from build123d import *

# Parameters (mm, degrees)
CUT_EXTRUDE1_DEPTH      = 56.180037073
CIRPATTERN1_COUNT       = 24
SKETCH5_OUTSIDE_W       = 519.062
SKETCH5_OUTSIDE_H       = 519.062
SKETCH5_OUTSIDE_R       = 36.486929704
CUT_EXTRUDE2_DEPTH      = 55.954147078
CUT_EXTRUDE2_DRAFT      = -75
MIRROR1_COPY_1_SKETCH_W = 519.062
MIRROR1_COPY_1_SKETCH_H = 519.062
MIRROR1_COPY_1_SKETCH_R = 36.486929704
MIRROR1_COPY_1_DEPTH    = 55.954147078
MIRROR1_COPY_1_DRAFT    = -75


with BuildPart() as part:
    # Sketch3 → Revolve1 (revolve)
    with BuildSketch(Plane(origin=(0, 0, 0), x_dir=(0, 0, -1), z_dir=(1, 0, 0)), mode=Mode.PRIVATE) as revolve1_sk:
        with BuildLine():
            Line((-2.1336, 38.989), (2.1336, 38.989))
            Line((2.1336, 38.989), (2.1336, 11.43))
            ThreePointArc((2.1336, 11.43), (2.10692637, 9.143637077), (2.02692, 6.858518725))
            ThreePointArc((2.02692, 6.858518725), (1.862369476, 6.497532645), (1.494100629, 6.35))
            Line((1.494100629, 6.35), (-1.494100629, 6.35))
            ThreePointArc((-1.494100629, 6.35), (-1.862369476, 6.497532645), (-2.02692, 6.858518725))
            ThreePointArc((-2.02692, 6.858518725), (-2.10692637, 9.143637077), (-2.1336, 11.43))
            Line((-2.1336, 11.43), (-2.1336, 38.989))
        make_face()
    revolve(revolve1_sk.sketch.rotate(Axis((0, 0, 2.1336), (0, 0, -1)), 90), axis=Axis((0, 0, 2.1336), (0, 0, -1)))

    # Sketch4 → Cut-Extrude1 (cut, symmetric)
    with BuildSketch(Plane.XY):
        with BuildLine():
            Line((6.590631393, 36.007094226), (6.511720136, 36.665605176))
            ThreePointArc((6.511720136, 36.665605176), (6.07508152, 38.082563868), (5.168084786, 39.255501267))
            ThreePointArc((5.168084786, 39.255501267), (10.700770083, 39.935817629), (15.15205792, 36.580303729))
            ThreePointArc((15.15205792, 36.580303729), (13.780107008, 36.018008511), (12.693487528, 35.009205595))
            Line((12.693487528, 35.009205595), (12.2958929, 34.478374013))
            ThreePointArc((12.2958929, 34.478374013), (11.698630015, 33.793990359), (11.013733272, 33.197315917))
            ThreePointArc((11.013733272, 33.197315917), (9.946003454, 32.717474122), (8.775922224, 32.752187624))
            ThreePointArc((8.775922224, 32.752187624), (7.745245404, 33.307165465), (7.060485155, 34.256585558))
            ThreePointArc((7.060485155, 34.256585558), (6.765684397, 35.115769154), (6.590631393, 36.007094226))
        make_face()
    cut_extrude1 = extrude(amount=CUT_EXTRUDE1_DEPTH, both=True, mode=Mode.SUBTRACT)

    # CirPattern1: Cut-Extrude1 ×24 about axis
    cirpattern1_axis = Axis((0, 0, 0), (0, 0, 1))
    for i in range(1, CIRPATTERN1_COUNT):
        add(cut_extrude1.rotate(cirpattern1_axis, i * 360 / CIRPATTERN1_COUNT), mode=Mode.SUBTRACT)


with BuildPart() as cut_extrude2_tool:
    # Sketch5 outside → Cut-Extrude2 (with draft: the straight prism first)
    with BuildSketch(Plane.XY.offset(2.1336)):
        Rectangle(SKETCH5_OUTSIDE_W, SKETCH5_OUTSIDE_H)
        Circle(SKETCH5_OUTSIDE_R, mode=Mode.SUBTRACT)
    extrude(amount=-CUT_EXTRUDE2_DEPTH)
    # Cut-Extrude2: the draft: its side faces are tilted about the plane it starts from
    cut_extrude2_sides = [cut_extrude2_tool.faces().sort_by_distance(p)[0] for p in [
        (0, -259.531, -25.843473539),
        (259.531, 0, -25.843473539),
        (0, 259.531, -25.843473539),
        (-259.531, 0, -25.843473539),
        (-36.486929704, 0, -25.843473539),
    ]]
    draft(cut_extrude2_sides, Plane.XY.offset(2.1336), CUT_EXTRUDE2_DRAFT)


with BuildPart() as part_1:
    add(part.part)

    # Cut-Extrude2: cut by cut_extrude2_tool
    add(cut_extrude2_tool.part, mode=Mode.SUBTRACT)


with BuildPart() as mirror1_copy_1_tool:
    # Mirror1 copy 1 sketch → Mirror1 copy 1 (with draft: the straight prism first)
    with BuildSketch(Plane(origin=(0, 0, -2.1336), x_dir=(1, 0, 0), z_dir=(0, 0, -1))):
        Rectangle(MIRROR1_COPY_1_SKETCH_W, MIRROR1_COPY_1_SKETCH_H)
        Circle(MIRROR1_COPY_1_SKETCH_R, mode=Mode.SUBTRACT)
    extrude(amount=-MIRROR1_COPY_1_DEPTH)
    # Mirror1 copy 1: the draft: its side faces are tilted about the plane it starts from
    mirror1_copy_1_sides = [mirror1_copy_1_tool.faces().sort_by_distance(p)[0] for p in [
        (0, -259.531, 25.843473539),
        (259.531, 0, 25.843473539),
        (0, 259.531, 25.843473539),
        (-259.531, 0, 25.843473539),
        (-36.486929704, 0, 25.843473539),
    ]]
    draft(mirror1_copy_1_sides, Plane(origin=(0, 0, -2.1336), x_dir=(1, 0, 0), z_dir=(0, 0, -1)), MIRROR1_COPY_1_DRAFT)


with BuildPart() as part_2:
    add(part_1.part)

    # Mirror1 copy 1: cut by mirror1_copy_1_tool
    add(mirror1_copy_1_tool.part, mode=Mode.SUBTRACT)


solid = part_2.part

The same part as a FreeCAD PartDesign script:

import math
import FreeCAD as App
import Part
import Sketcher

V = App.Vector
Q = App.Units.Quantity


def faces_at(feature, points):
    """Names of the faces that lie closest to the given points."""
    faces = feature.Shape.Faces
    near = lambda p: min(range(len(faces)), key=lambda i: faces[i].distToShape(Part.Vertex(*p))[0])
    return sorted({f"Face{near(p) + 1}" for p in points})


def add_polygon(sketch, points):
    """Adds a closed chain of lines whose ends are joined by coincident constraints."""
    first, n = sketch.GeometryCount, len(points)
    for a, b in zip(points, points[1:] + points[:1]):
        sketch.addGeometry(Part.LineSegment(App.Vector(*a, 0), App.Vector(*b, 0)), False)
    for i in range(n):
        sketch.addConstraint(Sketcher.Constraint("Coincident", first + i, 2, first + (i + 1) % n, 1))

doc = App.newDocument("Part")
params = doc.addObject("Spreadsheet::Sheet", "Params")
for row, (alias, value) in enumerate([
    ("sketch1_radius", "0.021 in"),
    ("sketch1_width", "1.085 in"),
    ("sketch1_height", "0.168 in"),
    ("revolution_angle", "360 deg"),
    ("sketch2_radius", "0.262 in"),
    ("pocket1_length", "112.360074 mm"),
    ("pad1_length", "55.954147 mm"),
    ("draft_angle", "75 deg"),
    ("pad2_length", "55.954147 mm"),
    ("draft2_angle", "75 deg"),
], start=1):
    params.set(f"A{row}", alias)
    params.set(f"B{row}", "=" + value)
    params.setAlias(f"B{row}", alias)

body = doc.addObject("PartDesign::Body", "Body")

sketch1 = body.newObject("Sketcher::SketchObject", "Sketch")
sketch1.AttachmentSupport = (doc.getObject("YZ_Plane"), [""])
sketch1.MapMode = "FlatFace"
sketch1.addGeometry([
    Part.LineSegment(V(38.989, -2.1336, 0), V(38.989, 2.1336, 0)),
    Part.LineSegment(V(38.989, 2.1336, 0), V(11.43, 2.1336, 0)),
    Part.ArcOfCircle(Part.Circle(V(11.43, -95.868939, 0), V(0, 0, 1), 98.002539), math.radians(90), math.radians(92.673621)),
    Part.ArcOfCircle(Part.Circle(V(6.8834, 1.494101, 0), V(0, 0, 1), 0.5334), math.radians(92.673621), math.radians(180)),
    Part.LineSegment(V(6.35, 1.494101, 0), V(6.35, -1.494101, 0)),
    Part.ArcOfCircle(Part.Circle(V(6.8834, -1.494101, 0), V(0, 0, 1), 0.5334), math.radians(-180), math.radians(-92.673621)),
    Part.ArcOfCircle(Part.Circle(V(11.43, 95.868939, 0), V(0, 0, 1), 98.002539), math.radians(-92.673621), math.radians(-90)),
    Part.LineSegment(V(11.43, -2.1336, 0), V(38.989, -2.1336, 0)),
], False)
sketch1.addConstraint([
    Sketcher.Constraint("Coincident", 0, 2, 1, 1),
    Sketcher.Constraint("Tangent", 1, 2, 2, 1),
    Sketcher.Constraint("Tangent", 2, 2, 3, 1),
    Sketcher.Constraint("Tangent", 3, 2, 4, 1),
    Sketcher.Constraint("Tangent", 4, 2, 5, 1),
    Sketcher.Constraint("Tangent", 5, 2, 6, 1),
    Sketcher.Constraint("Tangent", 6, 2, 7, 1),
    Sketcher.Constraint("Coincident", 7, 2, 0, 1),
    Sketcher.Constraint("Vertical", 0),
    Sketcher.Constraint("Horizontal", 1),
    Sketcher.Constraint("Vertical", 4),
    Sketcher.Constraint("Horizontal", 7),
    Sketcher.Constraint("Equal", 3, 5),
    Sketcher.Constraint("Equal", 2, 6),
    Sketcher.Constraint("Symmetric", 2, 3, 6, 3, -1),
    Sketcher.Constraint("Radius", 3, Q("0.021 in")),
    Sketcher.Constraint("DistanceX", 3, 2, 1, 2, Q("0.2 in")),
    Sketcher.Constraint("DistanceX", 1, 2, 1, 1, Q("1.085 in")),
    Sketcher.Constraint("DistanceY", 0, 1, 0, 2, Q("0.168 in")),
    Sketcher.Constraint("DistanceX", -1, 1, 2, 3, Q("0.45 in")),
    Sketcher.Constraint("Radius", 2, 98.002539),
])
sketch1.setExpression("Constraints[15]", "Params.sketch1_radius")
sketch1.setExpression("Constraints[17]", "Params.sketch1_width")
sketch1.setExpression("Constraints[18]", "Params.sketch1_height")
revolution = body.newObject("PartDesign::Revolution", "Revolution")
revolution.Profile = sketch1
revolution.ReferenceAxis = (sketch1, ["V_Axis"])
revolution.setExpression("Angle", "Params.revolution_angle")

sketch2 = body.newObject("Sketcher::SketchObject", "Sketch001")
sketch2.AttachmentSupport = (doc.getObject("XY_Plane"), [""])
sketch2.MapMode = "FlatFace"
sketch2.addGeometry([
    Part.LineSegment(V(6.51172, 36.665605, 0), V(6.590631, 36.007094, 0)),
    Part.ArcOfCircle(Part.Circle(V(13.192987, 36.84092, 0), V(0, 0, 1), 6.6548), math.radians(-172.802095), math.radians(-157.14866)),
    Part.ArcOfCircle(Part.Circle(V(9.467389, 35.270893, 0), V(0, 0, 1), 2.611897), math.radians(-157.14866), math.radians(-105.35134)),
    Part.ArcOfCircle(Part.Circle(V(9.436448, 35.279184, 0), V(0, 0, 1), 2.611897), math.radians(-104.64866), math.radians(-52.85134)),
    Part.ArcOfCircle(Part.Circle(V(6.994998, 38.501666, 0), V(0, 0, 1), 6.6548), math.radians(-52.85134), math.radians(-37.197905)),
    Part.LineSegment(V(12.295893, 34.478374, 0), V(12.693488, 35.009206, 0)),
    Part.ArcOfCircle(Part.Circle(V(16.014144, 32.522023, 0), V(0, 0, 1), 4.148835), math.radians(101.99286), math.radians(143.166667)),
    Part.ArcOfCircle(Part.Circle(V(8.775922, 32.752188, 0), V(0, 0, 1), 7.437041), math.radians(30.979841), math.radians(119.020159)),
    Part.ArcOfCircle(Part.Circle(V(2.392356, 36.17197, 0), V(0, 0, 1), 4.148835), math.radians(6.833333), math.radians(48.00714)),
], False)
sketch2.addConstraint([
    Sketcher.Constraint("Coincident", 0, 2, 1, 1),
    Sketcher.Constraint("Tangent", 1, 2, 2, 1),
    Sketcher.Constraint("Coincident", 2, 2, 3, 1),
    Sketcher.Constraint("Tangent", 3, 2, 4, 1),
    Sketcher.Constraint("Coincident", 4, 2, 5, 1),
    Sketcher.Constraint("Tangent", 5, 2, 6, 2),
    Sketcher.Constraint("Coincident", 6, 1, 7, 1),
    Sketcher.Constraint("Coincident", 7, 2, 8, 2),
    Sketcher.Constraint("Tangent", 8, 1, 0, 1),
    Sketcher.Constraint("Coincident", 2, 2, 7, 3),
    Sketcher.Constraint("Equal", 2, 3),
    Sketcher.Constraint("Equal", 1, 4),
    Sketcher.Constraint("Equal", 6, 8),
    Sketcher.Constraint("Equal", 0, 5),
    Sketcher.Constraint("Radius", 1, Q("0.262 in")),
    Sketcher.Constraint("Radius", 7, 7.437041),
    Sketcher.Constraint("Radius", 2, 2.611897),
    Sketcher.Constraint("Radius", 6, 4.148835),
    Sketcher.Constraint("DistanceX", 7, 3, 1, 3, Q("0.1739002 in")),
    Sketcher.Constraint("DistanceX", -1, 1, 4, 3, 6.994998),
    Sketcher.Constraint("DistanceY", -1, 1, 7, 2, 39.255501),
    Sketcher.Constraint("DistanceX", 2, 3, 1, 3, 3.725598),
    Sketcher.Constraint("DistanceY", 2, 3, 0, 2, 0.736201),
    Sketcher.Constraint("DistanceY", 1, 2, 3, 3, 1.022598),
    Sketcher.Constraint("DistanceX", 5, 2, 1, 3, 0.499499),
    Sketcher.Constraint("DistanceY", 5, 2, 6, 1, 1.571098),
    Sketcher.Constraint("DistanceX", 7, 2, 1, 2, 1.8924),
    Sketcher.Constraint("DistanceX", -1, 1, 2, 3, 9.467389),
    Sketcher.Constraint("DistanceY", -1, 1, 8, 3, 36.17197),
])
sketch2.setExpression("Constraints[14]", "Params.sketch2_radius")
pocket1 = body.newObject("PartDesign::Pocket", "Pocket")
pocket1.Profile = sketch2
pocket1.setExpression("Length", "Params.pocket1_length")
pocket1.Midplane = True
doc.recompute()

polarpattern = body.newObject("PartDesign::PolarPattern", "PolarPattern")
polarpattern.Originals = [pocket1]
polarpattern.Axis = (doc.getObject("Z_Axis"), [""])
polarpattern.Angle = 360
polarpattern.Occurrences = 24
body.Tip = polarpattern
body2 = doc.addObject("PartDesign::Body", "Body001")

sketch3 = body2.newObject("Sketcher::SketchObject", "Sketch002")
sketch3.AttachmentSupport = (doc.getObject("XY_Plane001"), [""])
sketch3.MapMode = "FlatFace"
sketch3.AttachmentOffset = App.Placement(V(0, 0, 0.084 * 25.4), App.Rotation())
add_polygon(sketch3, [(-259.531, 259.531), (-259.531, -259.531), (259.531, -259.531), (259.531, 259.531)])
sketch3.addGeometry(Part.Circle(V(0, 0, 0), V(0, 0, 1), 36.48693), False)
sketch3.addConstraint([
    Sketcher.Constraint("Vertical", 0),
    Sketcher.Constraint("Horizontal", 1),
    Sketcher.Constraint("Vertical", 2),
    Sketcher.Constraint("Horizontal", 3),
    Sketcher.Constraint("Coincident", 4, 3, -1, 1),
    Sketcher.Constraint("Symmetric", 0, 2, 2, 2, -1, 1),
    Sketcher.Constraint("Equal", 3, 0),
    Sketcher.Constraint("Diameter", 4, 72.973859),
    Sketcher.Constraint("DistanceX", 1, 1, 1, 2, 519.062),
])
pad1 = body2.newObject("PartDesign::Pad", "Pad")
pad1.Profile = sketch3
pad1.setExpression("Length", "Params.pad1_length")
pad1.Reversed = True
doc.recompute()

datumplane = body2.newObject("PartDesign::Plane", "DatumPlane")
datumplane.AttachmentSupport = (doc.getObject("XY_Plane001"), [""])
datumplane.MapMode = "FlatFace"
datumplane.AttachmentOffset = App.Placement(V(0, 0, 0.084 * 25.4), App.Rotation())
draft = body2.newObject("PartDesign::Draft", "Draft")
draft.Base = (pad1, faces_at(pad1, [
    (0, -259.531, -25.843),
    (259.531, 0, -25.843),
    (0, 259.531, -25.843),
    (-259.531, 0, -25.843),
    (-36.487, 0, -25.843),
]))
draft.NeutralPlane = (datumplane, [""])
draft.setExpression("Angle", "Params.draft_angle")
draft.Reversed = True
doc.recompute()

boolean = body.newObject("PartDesign::Boolean", "Boolean")
boolean.Type = "Cut"
boolean.addObjects([body2])
body3 = doc.addObject("PartDesign::Body", "Body002")

sketch4 = body3.newObject("Sketcher::SketchObject", "Sketch003")
sketch4.AttachmentSupport = (doc.getObject("XY_Plane002"), [""])
sketch4.MapMode = "FlatFace"
sketch4.AttachmentOffset = App.Placement(V(0, 0, -0.084 * 25.4), App.Rotation())
add_polygon(sketch4, [(-259.531, -259.531), (-259.531, 259.531), (259.531, 259.531), (259.531, -259.531)])
sketch4.addGeometry(Part.Circle(V(0, 0, 0), V(0, 0, 1), 36.48693), False)
sketch4.addConstraint([
    Sketcher.Constraint("Vertical", 0),
    Sketcher.Constraint("Horizontal", 1),
    Sketcher.Constraint("Vertical", 2),
    Sketcher.Constraint("Horizontal", 3),
    Sketcher.Constraint("Coincident", 4, 3, -1, 1),
    Sketcher.Constraint("Symmetric", 0, 2, 2, 2, -1, 1),
    Sketcher.Constraint("Equal", 3, 0),
    Sketcher.Constraint("Diameter", 4, 72.973859),
    Sketcher.Constraint("DistanceX", 1, 1, 1, 2, 519.062),
])
pad2 = body3.newObject("PartDesign::Pad", "Pad001")
pad2.Profile = sketch4
pad2.setExpression("Length", "Params.pad2_length")
doc.recompute()

datumplane2 = body3.newObject("PartDesign::Plane", "DatumPlane001")
datumplane2.AttachmentSupport = (doc.getObject("XY_Plane002"), [""])
datumplane2.MapMode = "FlatFace"
datumplane2.AttachmentOffset = App.Placement(V(0, 0, -0.084 * 25.4), App.Rotation())
draft2 = body3.newObject("PartDesign::Draft", "Draft001")
draft2.Base = (pad2, faces_at(pad2, [
    (0, -259.531, 25.843),
    (259.531, 0, 25.843),
    (0, 259.531, 25.843),
    (-259.531, 0, 25.843),
    (-36.487, 0, 25.843),
]))
draft2.NeutralPlane = (datumplane2, [""])
draft2.setExpression("Angle", "Params.draft2_angle")
draft2.Reversed = False
doc.recompute()

boolean2 = body.newObject("PartDesign::Boolean", "Boolean001")
boolean2.Type = "Cut"
boolean2.addObjects([body3])

doc.recompute()
